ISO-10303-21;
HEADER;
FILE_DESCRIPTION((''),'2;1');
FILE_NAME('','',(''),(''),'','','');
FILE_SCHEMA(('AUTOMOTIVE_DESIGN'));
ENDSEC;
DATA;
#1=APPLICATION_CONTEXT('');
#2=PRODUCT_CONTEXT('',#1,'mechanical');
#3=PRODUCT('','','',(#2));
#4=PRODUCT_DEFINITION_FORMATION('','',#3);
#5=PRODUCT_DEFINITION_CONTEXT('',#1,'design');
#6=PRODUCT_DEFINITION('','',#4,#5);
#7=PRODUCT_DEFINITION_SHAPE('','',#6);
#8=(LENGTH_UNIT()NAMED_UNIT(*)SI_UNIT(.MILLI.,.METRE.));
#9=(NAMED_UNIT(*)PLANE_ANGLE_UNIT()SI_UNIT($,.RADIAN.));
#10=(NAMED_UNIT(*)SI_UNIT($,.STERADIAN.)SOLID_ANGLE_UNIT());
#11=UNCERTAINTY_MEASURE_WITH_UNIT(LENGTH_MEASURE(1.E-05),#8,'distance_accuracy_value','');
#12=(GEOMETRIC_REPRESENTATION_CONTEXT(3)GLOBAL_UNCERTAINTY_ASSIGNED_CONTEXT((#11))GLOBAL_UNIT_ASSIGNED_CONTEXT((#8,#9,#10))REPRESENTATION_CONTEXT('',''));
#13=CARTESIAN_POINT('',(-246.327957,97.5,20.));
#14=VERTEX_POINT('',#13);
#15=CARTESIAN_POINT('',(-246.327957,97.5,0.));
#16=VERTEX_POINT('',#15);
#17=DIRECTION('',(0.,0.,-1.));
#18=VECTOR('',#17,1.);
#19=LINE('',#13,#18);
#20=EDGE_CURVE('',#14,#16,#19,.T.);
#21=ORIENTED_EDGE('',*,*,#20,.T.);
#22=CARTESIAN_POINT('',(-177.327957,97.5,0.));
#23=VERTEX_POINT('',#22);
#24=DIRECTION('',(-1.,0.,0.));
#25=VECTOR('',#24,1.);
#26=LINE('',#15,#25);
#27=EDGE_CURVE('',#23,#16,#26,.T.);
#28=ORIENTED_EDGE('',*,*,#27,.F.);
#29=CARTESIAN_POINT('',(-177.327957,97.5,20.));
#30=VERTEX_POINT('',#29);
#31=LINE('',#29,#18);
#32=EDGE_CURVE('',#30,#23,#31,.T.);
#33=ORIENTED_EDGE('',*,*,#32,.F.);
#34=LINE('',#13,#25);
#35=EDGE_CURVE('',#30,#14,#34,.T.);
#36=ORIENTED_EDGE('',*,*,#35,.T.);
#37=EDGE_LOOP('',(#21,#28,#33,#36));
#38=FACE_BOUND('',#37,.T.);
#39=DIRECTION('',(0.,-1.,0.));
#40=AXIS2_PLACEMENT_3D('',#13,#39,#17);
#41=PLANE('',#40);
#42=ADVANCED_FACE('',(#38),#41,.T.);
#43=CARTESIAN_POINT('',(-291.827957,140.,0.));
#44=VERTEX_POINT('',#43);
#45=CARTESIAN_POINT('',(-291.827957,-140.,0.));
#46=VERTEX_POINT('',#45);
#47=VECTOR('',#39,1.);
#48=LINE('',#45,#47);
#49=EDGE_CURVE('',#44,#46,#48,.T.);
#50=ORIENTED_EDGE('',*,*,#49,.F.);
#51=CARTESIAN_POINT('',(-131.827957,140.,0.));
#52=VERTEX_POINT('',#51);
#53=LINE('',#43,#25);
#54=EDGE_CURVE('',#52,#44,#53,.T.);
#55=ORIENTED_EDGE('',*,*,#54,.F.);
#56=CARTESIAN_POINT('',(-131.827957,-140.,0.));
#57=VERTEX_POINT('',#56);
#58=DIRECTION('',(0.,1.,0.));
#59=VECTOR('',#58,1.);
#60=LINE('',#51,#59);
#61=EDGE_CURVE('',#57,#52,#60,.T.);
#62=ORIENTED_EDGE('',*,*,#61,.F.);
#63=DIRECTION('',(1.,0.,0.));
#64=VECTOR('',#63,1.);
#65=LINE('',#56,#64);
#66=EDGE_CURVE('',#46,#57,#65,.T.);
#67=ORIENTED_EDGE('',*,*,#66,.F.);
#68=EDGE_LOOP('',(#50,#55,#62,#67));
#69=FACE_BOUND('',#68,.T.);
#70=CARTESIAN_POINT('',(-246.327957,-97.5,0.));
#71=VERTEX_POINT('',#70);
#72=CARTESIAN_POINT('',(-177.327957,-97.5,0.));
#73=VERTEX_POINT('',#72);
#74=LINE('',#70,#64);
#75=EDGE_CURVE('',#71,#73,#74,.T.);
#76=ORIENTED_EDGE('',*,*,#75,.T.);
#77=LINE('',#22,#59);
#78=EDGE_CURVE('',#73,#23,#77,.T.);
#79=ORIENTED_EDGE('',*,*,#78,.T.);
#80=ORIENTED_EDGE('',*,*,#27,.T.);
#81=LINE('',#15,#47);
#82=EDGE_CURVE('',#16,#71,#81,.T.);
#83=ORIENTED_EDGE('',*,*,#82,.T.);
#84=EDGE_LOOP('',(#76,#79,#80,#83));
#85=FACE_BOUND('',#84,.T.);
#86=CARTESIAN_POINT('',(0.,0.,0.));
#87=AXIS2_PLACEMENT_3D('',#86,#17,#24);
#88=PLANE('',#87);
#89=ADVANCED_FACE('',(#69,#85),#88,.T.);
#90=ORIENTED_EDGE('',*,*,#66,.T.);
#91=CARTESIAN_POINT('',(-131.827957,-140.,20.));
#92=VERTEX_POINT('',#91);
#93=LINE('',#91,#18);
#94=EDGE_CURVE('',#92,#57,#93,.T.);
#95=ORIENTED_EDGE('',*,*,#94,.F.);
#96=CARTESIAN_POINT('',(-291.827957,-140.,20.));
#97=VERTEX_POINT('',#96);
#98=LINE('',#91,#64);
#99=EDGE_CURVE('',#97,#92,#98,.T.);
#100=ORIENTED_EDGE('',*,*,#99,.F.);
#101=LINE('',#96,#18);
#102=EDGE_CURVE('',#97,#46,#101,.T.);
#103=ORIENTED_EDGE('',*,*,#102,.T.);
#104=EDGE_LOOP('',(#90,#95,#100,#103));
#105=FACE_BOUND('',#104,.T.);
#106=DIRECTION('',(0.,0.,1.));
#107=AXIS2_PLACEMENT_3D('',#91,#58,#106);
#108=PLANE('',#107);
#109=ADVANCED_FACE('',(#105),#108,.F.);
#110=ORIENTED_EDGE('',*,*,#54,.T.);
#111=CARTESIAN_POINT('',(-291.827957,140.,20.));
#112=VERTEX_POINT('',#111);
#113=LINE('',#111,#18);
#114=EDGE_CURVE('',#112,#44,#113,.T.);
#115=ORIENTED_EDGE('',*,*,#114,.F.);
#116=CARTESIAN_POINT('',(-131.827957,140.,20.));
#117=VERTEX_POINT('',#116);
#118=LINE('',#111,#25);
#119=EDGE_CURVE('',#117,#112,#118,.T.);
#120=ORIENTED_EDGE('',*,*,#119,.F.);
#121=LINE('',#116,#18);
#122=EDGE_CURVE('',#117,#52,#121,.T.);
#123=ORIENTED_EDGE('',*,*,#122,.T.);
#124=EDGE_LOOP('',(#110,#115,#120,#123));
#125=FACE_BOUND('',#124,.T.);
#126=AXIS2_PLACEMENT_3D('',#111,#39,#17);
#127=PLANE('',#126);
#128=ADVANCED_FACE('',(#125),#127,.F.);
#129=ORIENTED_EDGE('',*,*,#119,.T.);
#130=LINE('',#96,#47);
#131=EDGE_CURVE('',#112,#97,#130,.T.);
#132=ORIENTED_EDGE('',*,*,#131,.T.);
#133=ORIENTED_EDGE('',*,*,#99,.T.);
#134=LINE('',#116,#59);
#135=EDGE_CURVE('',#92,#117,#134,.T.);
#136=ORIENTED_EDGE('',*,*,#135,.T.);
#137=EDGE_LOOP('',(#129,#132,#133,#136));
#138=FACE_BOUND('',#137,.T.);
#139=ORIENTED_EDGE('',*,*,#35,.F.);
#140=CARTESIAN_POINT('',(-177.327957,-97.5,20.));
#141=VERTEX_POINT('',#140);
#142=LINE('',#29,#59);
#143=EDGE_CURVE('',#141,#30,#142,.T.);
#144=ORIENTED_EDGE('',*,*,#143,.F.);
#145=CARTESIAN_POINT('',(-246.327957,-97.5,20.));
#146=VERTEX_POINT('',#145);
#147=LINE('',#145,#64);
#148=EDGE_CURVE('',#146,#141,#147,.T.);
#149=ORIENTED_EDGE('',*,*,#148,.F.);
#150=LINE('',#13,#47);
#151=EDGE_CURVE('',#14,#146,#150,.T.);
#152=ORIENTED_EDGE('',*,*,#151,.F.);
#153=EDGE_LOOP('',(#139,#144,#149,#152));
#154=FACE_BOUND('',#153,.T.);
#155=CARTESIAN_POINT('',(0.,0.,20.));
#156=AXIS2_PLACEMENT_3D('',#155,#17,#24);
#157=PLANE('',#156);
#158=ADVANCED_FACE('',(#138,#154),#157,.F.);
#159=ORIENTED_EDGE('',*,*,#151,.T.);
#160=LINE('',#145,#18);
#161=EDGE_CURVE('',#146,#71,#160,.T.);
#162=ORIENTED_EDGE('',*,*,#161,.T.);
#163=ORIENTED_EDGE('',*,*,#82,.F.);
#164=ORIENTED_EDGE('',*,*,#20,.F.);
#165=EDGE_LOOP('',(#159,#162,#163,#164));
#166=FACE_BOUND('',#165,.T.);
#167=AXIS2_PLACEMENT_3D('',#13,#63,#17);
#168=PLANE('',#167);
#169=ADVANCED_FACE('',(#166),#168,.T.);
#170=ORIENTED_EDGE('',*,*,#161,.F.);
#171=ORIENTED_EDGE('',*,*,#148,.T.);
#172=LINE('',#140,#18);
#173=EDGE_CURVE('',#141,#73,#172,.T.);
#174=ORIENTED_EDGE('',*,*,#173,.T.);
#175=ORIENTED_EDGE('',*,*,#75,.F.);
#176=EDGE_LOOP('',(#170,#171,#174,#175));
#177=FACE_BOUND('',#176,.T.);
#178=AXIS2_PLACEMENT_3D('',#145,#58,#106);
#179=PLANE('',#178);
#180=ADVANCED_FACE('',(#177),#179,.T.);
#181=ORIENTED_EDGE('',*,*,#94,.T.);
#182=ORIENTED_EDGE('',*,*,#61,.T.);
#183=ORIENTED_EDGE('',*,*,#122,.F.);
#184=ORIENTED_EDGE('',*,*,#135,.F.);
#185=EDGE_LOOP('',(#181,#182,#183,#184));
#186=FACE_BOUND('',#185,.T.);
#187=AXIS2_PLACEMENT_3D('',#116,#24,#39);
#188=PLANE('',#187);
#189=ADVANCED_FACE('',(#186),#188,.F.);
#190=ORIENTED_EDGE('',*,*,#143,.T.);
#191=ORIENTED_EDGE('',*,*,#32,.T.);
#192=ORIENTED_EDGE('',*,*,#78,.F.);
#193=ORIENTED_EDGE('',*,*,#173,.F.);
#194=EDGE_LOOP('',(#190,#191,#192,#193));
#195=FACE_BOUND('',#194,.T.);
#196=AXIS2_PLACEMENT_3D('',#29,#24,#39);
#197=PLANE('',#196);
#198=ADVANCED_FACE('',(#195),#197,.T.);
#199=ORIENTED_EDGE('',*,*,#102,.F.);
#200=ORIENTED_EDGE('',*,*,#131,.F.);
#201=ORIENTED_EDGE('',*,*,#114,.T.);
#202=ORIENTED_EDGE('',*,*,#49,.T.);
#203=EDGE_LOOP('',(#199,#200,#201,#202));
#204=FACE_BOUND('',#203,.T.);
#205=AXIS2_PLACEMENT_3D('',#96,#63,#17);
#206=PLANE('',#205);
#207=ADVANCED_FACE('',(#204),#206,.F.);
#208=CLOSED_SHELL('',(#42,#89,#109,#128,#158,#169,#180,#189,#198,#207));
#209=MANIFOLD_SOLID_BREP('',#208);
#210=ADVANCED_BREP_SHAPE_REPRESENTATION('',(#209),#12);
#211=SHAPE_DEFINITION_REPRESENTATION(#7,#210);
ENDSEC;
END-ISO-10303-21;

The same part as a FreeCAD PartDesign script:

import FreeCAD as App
import Part
import Sketcher
from FreeCAD import Vector


def add_polygon(sketch, points):
    """Adds a closed chain of lines whose ends are joined by coincident constraints."""
    first, n = sketch.GeometryCount, len(points)
    for a, b in zip(points, points[1:] + points[:1]):
        sketch.addGeometry(Part.LineSegment(App.Vector(*a, 0), App.Vector(*b, 0)), False)
    for i in range(n):
        sketch.addConstraint(Sketcher.Constraint("Coincident", first + i, 2, first + (i + 1) % n, 1))

doc = App.newDocument("Part")
body = doc.addObject("PartDesign::Body", "Body")

# Sketch on XY plane
sketch1 = doc.addObject("Sketcher::SketchObject", "Sketch")
body.addObject(sketch1)
sketch1.AttachmentSupport = (doc.XY_Plane, [""])
sketch1.MapMode = "FlatFace"
add_polygon(sketch1, [(-291.827957, 140), (-291.827957, -140), (-131.827957, -140), (-131.827957, 140)])  # lines 0-3
add_polygon(sketch1, [(-177.327957, -97.5), (-246.327957, -97.5), (-246.327957, 97.5), (-177.327957, 97.5)])  # lines 4-7
sketch1.addConstraint([
    Sketcher.Constraint("Vertical", 0),
    Sketcher.Constraint("Horizontal", 1),
    Sketcher.Constraint("Vertical", 2),
    Sketcher.Constraint("Horizontal", 3),
    Sketcher.Constraint("Horizontal", 4),
    Sketcher.Constraint("Vertical", 5),
    Sketcher.Constraint("Horizontal", 6),
    Sketcher.Constraint("Vertical", 7),
    Sketcher.Constraint("DistanceX", 1, 1, 1, 2, 160.0),
    Sketcher.Constraint("DistanceX", 4, 2, 4, 1, 69.0),
    Sketcher.Constraint("DistanceY", 0, 2, 0, 1, 280.0),
    Sketcher.Constraint("DistanceY", 5, 1, 5, 2, 195.0),
    Sketcher.Constraint("DistanceY", 0, 2, -1, 1, 140.0),
    Sketcher.Constraint("DistanceY", 4, 2, -1, 1, 97.5),
    Sketcher.Constraint("DistanceX", 0, 2, 4, 2, 45.5),
    Sketcher.Constraint("DistanceX", 0, 2, -1, 1, 291.827957),
])
pad1 = doc.addObject("PartDesign::Pad", "Pad")
body.addObject(pad1)
pad1.Profile = sketch1
pad1.Length = 20

doc.recompute()
